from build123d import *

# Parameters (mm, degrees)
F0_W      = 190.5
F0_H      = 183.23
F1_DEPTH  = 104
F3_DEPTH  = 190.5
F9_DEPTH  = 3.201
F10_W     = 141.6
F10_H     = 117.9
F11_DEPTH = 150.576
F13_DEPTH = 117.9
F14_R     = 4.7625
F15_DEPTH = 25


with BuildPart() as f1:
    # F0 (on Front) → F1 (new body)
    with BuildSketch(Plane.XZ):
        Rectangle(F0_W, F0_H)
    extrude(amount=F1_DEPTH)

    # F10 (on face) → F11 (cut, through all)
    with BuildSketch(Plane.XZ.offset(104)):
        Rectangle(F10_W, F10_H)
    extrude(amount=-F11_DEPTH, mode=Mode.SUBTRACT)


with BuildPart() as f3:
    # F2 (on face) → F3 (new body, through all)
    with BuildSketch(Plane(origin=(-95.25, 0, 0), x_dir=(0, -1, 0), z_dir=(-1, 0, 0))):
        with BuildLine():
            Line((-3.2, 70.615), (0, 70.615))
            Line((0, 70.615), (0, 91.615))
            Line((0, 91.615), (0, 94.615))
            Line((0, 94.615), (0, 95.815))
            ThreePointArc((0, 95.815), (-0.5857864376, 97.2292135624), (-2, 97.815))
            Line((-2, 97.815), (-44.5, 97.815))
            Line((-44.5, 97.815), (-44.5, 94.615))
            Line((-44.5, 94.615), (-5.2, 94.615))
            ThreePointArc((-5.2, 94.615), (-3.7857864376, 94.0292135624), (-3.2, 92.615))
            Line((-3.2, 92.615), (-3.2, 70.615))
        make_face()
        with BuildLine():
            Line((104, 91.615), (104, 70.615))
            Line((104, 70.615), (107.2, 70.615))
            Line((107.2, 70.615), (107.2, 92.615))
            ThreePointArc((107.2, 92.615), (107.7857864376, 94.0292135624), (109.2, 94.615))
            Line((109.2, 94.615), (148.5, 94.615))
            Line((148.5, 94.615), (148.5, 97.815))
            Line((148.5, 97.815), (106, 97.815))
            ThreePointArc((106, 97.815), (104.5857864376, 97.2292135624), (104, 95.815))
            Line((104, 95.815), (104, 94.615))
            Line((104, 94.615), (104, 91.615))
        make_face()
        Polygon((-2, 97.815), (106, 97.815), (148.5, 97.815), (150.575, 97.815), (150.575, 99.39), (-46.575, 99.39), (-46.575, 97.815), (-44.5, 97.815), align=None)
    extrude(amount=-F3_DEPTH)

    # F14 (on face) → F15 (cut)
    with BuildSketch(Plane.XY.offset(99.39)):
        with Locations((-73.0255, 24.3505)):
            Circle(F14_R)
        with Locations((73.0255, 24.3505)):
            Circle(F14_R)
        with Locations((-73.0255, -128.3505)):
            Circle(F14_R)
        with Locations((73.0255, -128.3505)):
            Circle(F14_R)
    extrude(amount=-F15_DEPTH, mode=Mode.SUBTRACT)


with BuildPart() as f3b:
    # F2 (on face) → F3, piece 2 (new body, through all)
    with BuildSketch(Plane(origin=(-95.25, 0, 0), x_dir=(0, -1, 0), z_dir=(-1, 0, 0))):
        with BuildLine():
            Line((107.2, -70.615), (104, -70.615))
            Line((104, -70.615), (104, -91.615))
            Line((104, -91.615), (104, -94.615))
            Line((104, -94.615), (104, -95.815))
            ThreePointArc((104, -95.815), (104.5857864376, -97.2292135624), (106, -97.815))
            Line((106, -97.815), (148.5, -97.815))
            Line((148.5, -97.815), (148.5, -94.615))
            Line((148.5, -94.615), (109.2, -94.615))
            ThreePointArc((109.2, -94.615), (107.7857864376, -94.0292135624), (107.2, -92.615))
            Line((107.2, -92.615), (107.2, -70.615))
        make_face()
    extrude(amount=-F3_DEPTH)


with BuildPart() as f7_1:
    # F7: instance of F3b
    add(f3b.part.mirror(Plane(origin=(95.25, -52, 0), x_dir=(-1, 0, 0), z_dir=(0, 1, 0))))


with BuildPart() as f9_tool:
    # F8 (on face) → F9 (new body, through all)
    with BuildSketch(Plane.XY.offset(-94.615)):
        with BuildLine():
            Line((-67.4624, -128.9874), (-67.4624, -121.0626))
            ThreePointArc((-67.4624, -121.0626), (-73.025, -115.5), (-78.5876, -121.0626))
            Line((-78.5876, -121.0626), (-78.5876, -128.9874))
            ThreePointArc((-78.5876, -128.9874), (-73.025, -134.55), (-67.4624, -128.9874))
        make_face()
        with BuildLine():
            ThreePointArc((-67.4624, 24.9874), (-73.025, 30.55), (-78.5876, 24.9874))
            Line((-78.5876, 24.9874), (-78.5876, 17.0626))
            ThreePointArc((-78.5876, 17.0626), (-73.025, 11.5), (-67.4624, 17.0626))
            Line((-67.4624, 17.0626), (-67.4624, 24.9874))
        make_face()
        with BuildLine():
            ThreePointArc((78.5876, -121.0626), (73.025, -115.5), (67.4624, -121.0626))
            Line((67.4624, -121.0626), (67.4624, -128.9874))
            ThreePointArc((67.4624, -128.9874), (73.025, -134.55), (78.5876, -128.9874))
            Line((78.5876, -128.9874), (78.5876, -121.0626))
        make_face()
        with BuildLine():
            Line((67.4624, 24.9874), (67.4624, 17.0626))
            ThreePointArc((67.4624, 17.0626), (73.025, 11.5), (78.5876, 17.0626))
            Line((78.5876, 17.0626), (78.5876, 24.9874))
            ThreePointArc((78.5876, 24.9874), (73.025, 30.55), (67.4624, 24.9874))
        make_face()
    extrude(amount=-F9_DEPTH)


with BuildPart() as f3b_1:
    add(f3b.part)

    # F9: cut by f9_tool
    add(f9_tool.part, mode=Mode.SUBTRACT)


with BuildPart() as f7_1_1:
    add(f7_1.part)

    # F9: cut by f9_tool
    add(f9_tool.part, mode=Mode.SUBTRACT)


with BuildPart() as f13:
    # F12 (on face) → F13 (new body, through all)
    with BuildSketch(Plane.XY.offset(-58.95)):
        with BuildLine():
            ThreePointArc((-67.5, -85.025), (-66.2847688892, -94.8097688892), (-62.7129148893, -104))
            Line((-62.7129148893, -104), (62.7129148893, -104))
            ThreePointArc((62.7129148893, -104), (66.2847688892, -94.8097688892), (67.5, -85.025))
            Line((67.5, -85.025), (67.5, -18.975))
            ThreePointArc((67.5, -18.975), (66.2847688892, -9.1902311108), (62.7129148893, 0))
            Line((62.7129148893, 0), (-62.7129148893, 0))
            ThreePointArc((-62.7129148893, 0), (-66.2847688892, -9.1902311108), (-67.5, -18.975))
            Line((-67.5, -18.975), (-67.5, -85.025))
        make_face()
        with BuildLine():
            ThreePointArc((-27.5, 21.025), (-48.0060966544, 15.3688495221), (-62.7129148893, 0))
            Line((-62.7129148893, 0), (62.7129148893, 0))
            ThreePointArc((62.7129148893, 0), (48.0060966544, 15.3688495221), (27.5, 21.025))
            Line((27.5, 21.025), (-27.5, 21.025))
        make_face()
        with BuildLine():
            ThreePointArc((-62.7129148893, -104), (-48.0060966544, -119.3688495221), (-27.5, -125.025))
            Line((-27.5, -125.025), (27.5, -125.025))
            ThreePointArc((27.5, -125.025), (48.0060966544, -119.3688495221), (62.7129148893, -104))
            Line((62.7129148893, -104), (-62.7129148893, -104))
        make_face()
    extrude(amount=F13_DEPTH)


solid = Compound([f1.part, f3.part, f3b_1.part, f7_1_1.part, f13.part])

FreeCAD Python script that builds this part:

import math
import FreeCAD as App
import Part
import Sketcher
from FreeCAD import Vector

doc = App.newDocument("Part")
params = doc.addObject("Spreadsheet::Sheet", "Params")
for row, (alias, value) in enumerate([
    ("sketch1_width", "190.5 mm"),
    ("sketch1_height", "183.23 mm"),
    ("pad1_length", "104 mm"),
    ("sketch2_width", "141.6 mm"),
    ("sketch2_height", "117.9 mm"),
    ("sketch3_radius", "2 mm"),
    ("sketch3_width", "108 mm"),
    ("sketch3_height", "22 mm"),
    ("sketch3_width2", "3.2 mm"),
    ("sketch3_width3", "39.3 mm"),
    ("pad2_length", "190.5 mm"),
    ("pocket2_length", "25 mm"),
    ("sketch5_radius", "2 mm"),
    ("sketch5_height", "22 mm"),
    ("sketch5_width", "3.2 mm"),
    ("sketch5_width2", "42.5 mm"),
    ("pad3_length", "190.5 mm"),
    ("pad4_length", "3.201 mm"),
    ("sketch7_radius", "40 mm"),
    ("sketch7_width", "55 mm"),
    ("sketch7_height", "66.05 mm"),
    ("pad5_length", "117.9 mm"),
], start=1):
    params.set(f"A{row}", alias)
    params.set(f"B{row}", "=" + value)
    params.setAlias(f"B{row}", alias)

body = doc.addObject("PartDesign::Body", "Body")

sketch1 = body.newObject("Sketcher::SketchObject", "Sketch")
sketch1.AttachmentSupport = (doc.getObject("XZ_Plane"), [""])
sketch1.MapMode = "FlatFace"
sketch1.addGeometry([
    Part.LineSegment(Vector(-95, 92, 0), Vector(-95, -92, 0)),
    Part.LineSegment(Vector(-95, -92, 0), Vector(95, -92, 0)),
    Part.LineSegment(Vector(95, -92, 0), Vector(95, 92, 0)),
    Part.LineSegment(Vector(95, 92, 0), Vector(-95, 92, 0)),
], False)
sketch1.addConstraint([
    Sketcher.Constraint("Coincident", 0, 2, 1, 1),
    Sketcher.Constraint("Coincident", 1, 2, 2, 1),
    Sketcher.Constraint("Coincident", 2, 2, 3, 1),
    Sketcher.Constraint("Coincident", 3, 2, 0, 1),
    Sketcher.Constraint("Vertical", 0),
    Sketcher.Constraint("Horizontal", 1),
    Sketcher.Constraint("Vertical", 2),
    Sketcher.Constraint("Horizontal", 3),
    Sketcher.Constraint("Symmetric", 0, 2, 2, 2, -1, 1),
    Sketcher.Constraint("DistanceX", 1, 1, 1, 2, 190.5),
    Sketcher.Constraint("DistanceY", 0, 2, 0, 1, 183.23),
])
sketch1.setExpression("Constraints[9]", "Params.sketch1_width")
sketch1.setExpression("Constraints[10]", "Params.sketch1_height")
pad1 = body.newObject("PartDesign::Pad", "Pad")
pad1.Profile = sketch1
pad1.setExpression("Length", "Params.pad1_length")

sketch2 = body.newObject("Sketcher::SketchObject", "Sketch001")
sketch2.AttachmentSupport = (doc.getObject("XZ_Plane"), [""])
sketch2.MapMode = "FlatFace"
sketch2.AttachmentOffset = App.Placement(Vector(0, 0, 104), App.Rotation())
sketch2.addGeometry([
    Part.LineSegment(Vector(-71, 59, 0), Vector(-71, -59, 0)),
    Part.LineSegment(Vector(-71, -59, 0), Vector(71, -59, 0)),
    Part.LineSegment(Vector(71, -59, 0), Vector(71, 59, 0)),
    Part.LineSegment(Vector(71, 59, 0), Vector(-71, 59, 0)),
], False)
sketch2.addConstraint([
    Sketcher.Constraint("Coincident", 0, 2, 1, 1),
    Sketcher.Constraint("Coincident", 1, 2, 2, 1),
    Sketcher.Constraint("Coincident", 2, 2, 3, 1),
    Sketcher.Constraint("Coincident", 3, 2, 0, 1),
    Sketcher.Constraint("Vertical", 0),
    Sketcher.Constraint("Horizontal", 1),
    Sketcher.Constraint("Vertical", 2),
    Sketcher.Constraint("Horizontal", 3),
    Sketcher.Constraint("Symmetric", 0, 2, 2, 2, -1, 1),
    Sketcher.Constraint("DistanceX", 1, 1, 1, 2, 141.6),
    Sketcher.Constraint("DistanceY", 0, 2, 0, 1, 117.9),
])
sketch2.setExpression("Constraints[9]", "Params.sketch2_width")
sketch2.setExpression("Constraints[10]", "Params.sketch2_height")
pocket1 = body.newObject("PartDesign::Pocket", "Pocket")
pocket1.Profile = sketch2
pocket1.Type = "ThroughAll"
body2 = doc.addObject("PartDesign::Body", "Body001")

sketch3 = body2.newObject("Sketcher::SketchObject", "Sketch002")
sketch3.AttachmentSupport = (doc.getObject("YZ_Plane001"), [""])
sketch3.MapMode = "FlatFace"
sketch3.AttachmentOffset = App.Placement(Vector(0, 0, -95.25), App.Rotation())
sketch3.addGeometry([
    Part.LineSegment(Vector(3.2, 70.6, 0), Vector(0, 70.6, 0)),
    Part.LineSegment(Vector(0, 70.6, 0), Vector(0, 95.8, 0)),
    Part.ArcOfCircle(Part.Circle(Vector(2, 95.8, 0), Vector(0, 0, 1), 2), math.radians(90), math.radians(180)),
    Part.LineSegment(Vector(2, 97.8, 0), Vector(-106, 97.8, 0)),
    Part.ArcOfCircle(Part.Circle(Vector(-106, 95.8, 0), Vector(0, 0, 1), 2), math.radians(0), math.radians(90)),
    Part.LineSegment(Vector(-104, 95.8, 0), Vector(-104, 70.6, 0)),
    Part.LineSegment(Vector(-104, 70.6, 0), Vector(-107.2, 70.6, 0)),
    Part.LineSegment(Vector(-107.2, 70.6, 0), Vector(-107.2, 92.6, 0)),
    Part.ArcOfCircle(Part.Circle(Vector(-109.2, 92.6, 0), Vector(0, 0, 1), 2), math.radians(0), math.radians(90)),
    Part.LineSegment(Vector(-109.2, 94.6, 0), Vector(-148.5, 94.6, 0)),
    Part.LineSegment(Vector(-148.5, 94.6, 0), Vector(-148.5, 97.8, 0)),
    Part.LineSegment(Vector(-148.5, 97.8, 0), Vector(-150.6, 97.8, 0)),
    Part.LineSegment(Vector(-150.6, 97.8, 0), Vector(-150.6, 99.4, 0)),
    Part.LineSegment(Vector(-150.6, 99.4, 0), Vector(46.6, 99.4, 0)),
    Part.LineSegment(Vector(46.6, 99.4, 0), Vector(46.6, 97.8, 0)),
    Part.LineSegment(Vector(46.6, 97.8, 0), Vector(44.5, 97.8, 0)),
    Part.LineSegment(Vector(44.5, 97.8, 0), Vector(44.5, 94.6, 0)),
    Part.LineSegment(Vector(44.5, 94.6, 0), Vector(5.2, 94.6, 0)),
    Part.ArcOfCircle(Part.Circle(Vector(5.2, 92.6, 0), Vector(0, 0, 1), 2), math.radians(90), math.radians(180)),
    Part.LineSegment(Vector(3.2, 92.6, 0), Vector(3.2, 70.6, 0)),
], False)
sketch3.addConstraint([
    Sketcher.Constraint("Coincident", 0, 2, 1, 1),
    Sketcher.Constraint("Tangent", 1, 2, 2, 2),
    Sketcher.Constraint("Tangent", 2, 1, 3, 1),
    Sketcher.Constraint("Tangent", 3, 2, 4, 2),
    Sketcher.Constraint("Tangent", 4, 1, 5, 1),
    Sketcher.Constraint("Coincident", 5, 2, 6, 1),
    Sketcher.Constraint("Coincident", 6, 2, 7, 1),
    Sketcher.Constraint("Tangent", 7, 2, 8, 1),
    Sketcher.Constraint("Tangent", 8, 2, 9, 1),
    Sketcher.Constraint("Coincident", 9, 2, 10, 1),
    Sketcher.Constraint("Coincident", 10, 2, 11, 1),
    Sketcher.Constraint("Coincident", 11, 2, 12, 1),
    Sketcher.Constraint("Coincident", 12, 2, 13, 1),
    Sketcher.Constraint("Coincident", 13, 2, 14, 1),
    Sketcher.Constraint("Coincident", 14, 2, 15, 1),
    Sketcher.Constraint("Coincident", 15, 2, 16, 1),
    Sketcher.Constraint("Coincident", 16, 2, 17, 1),
    Sketcher.Constraint("Tangent", 17, 2, 18, 1),
    Sketcher.Constraint("Tangent", 18, 2, 19, 1),
    Sketcher.Constraint("Coincident", 19, 2, 0, 1),
    Sketcher.Constraint("Horizontal", 0),
    Sketcher.Constraint("Vertical", 1),
    Sketcher.Constraint("Horizontal", 3),
    Sketcher.Constraint("Vertical", 5),
    Sketcher.Constraint("Horizontal", 6),
    Sketcher.Constraint("Vertical", 7),
    Sketcher.Constraint("Horizontal", 9),
    Sketcher.Constraint("Vertical", 10),
    Sketcher.Constraint("Horizontal", 11),
    Sketcher.Constraint("Vertical", 12),
    Sketcher.Constraint("Horizontal", 13),
    Sketcher.Constraint("Vertical", 14),
    Sketcher.Constraint("Horizontal", 15),
    Sketcher.Constraint("Vertical", 16),
    Sketcher.Constraint("Horizontal", 17),
    Sketcher.Constraint("Vertical", 19),
    Sketcher.Constraint("Equal", 2, 4),
    Sketcher.Constraint("Equal", 4, 8),
    Sketcher.Constraint("Equal", 8, 18),
    Sketcher.Constraint("PointOnObject", 0, 2, -2),
    Sketcher.Constraint("Horizontal", 8, 3, 18, 3),
    Sketcher.Constraint("Horizontal", 0, 2, 5, 2),
    Sketcher.Constraint("Horizontal", 3, 2, 10, 2),
    Sketcher.Constraint("Horizontal", 11, 2, 14, 2),
    Sketcher.Constraint("Equal", 0, 6),
    Sketcher.Constraint("Equal", 11, 15),
    Sketcher.Constraint("Equal", 9, 17),
    Sketcher.Constraint("Equal", 6, 10),
    Sketcher.Constraint("Radius", 2, 2.0),
    Sketcher.Constraint("DistanceX", 3, 2, 3, 1, 108.0),
    Sketcher.Constraint("DistanceY", 7, 1, 7, 2, 22.0),
    Sketcher.Constraint("DistanceX", 0, 2, 0, 1, 3.2),
    Sketcher.Constraint("DistanceX", 9, 2, 9, 1, 39.3),
    Sketcher.Constraint("DistanceX", 13, 1, 13, 2, 197.15),
    Sketcher.Constraint("DistanceY", 12, 1, 12, 2, 1.575),
    Sketcher.Constraint("DistanceY", -1, 1, 12, 2, 99.39),
])
sketch3.setExpression("Constraints[48]", "Params.sketch3_radius")
sketch3.setExpression("Constraints[49]", "Params.sketch3_width")
sketch3.setExpression("Constraints[50]", "Params.sketch3_height")
sketch3.setExpression("Constraints[51]", "Params.sketch3_width2")
sketch3.setExpression("Constraints[52]", "Params.sketch3_width3")
pad2 = body2.newObject("PartDesign::Pad", "Pad001")
pad2.Profile = sketch3
pad2.setExpression("Length", "Params.pad2_length")

sketch4 = body2.newObject("Sketcher::SketchObject", "Sketch003")
sketch4.AttachmentSupport = (doc.getObject("XY_Plane001"), [""])
sketch4.MapMode = "FlatFace"
sketch4.AttachmentOffset = App.Placement(Vector(0, 0, 99.39), App.Rotation())
sketch4.addGeometry([
    Part.Circle(Vector(-73, 24.4, 0), Vector(0, 0, 1), 4.8),
    Part.Circle(Vector(73, 24.4, 0), Vector(0, 0, 1), 4.8),
    Part.Circle(Vector(-73, -128.4, 0), Vector(0, 0, 1), 4.8),
    Part.Circle(Vector(73, -128.4, 0), Vector(0, 0, 1), 4.8),
], False)
sketch4.addConstraint([
    Sketcher.Constraint("Equal", 0, 1),
    Sketcher.Constraint("Equal", 1, 2),
    Sketcher.Constraint("Equal", 2, 3),
    Sketcher.Constraint("Symmetric", 0, 3, 1, 3, -2),
    Sketcher.Constraint("Symmetric", 2, 3, 3, 3, -2),
    Sketcher.Constraint("Vertical", 0, 3, 2, 3),
    Sketcher.Constraint("Diameter", 0, 9.525),
    Sketcher.Constraint("DistanceX", 0, 3, 1, 3, 146.051),
    Sketcher.Constraint("DistanceY", 2, 3, 0, 3, 152.701),
    Sketcher.Constraint("DistanceY", -1, 1, 0, 3, 24.3505),
])
pocket2 = body2.newObject("PartDesign::Pocket", "Pocket001")
pocket2.Profile = sketch4
pocket2.setExpression("Length", "Params.pocket2_length")
body3 = doc.addObject("PartDesign::Body", "Body002")

sketch5 = body3.newObject("Sketcher::SketchObject", "Sketch004")
sketch5.AttachmentSupport = (doc.getObject("YZ_Plane002"), [""])
sketch5.MapMode = "FlatFace"
sketch5.AttachmentOffset = App.Placement(Vector(0, 0, -95.25), App.Rotation())
sketch5.addGeometry([
    Part.LineSegment(Vector(-107.2, -70.6, 0), Vector(-104, -70.6, 0)),
    Part.LineSegment(Vector(-104, -70.6, 0), Vector(-104, -95.8, 0)),
    Part.ArcOfCircle(Part.Circle(Vector(-106, -95.8, 0), Vector(0, 0, 1), 2), math.radians(-90), math.radians(0)),
    Part.LineSegment(Vector(-106, -97.8, 0), Vector(-148.5, -97.8, 0)),
    Part.LineSegment(Vector(-148.5, -97.8, 0), Vector(-148.5, -94.6, 0)),
    Part.LineSegment(Vector(-148.5, -94.6, 0), Vector(-109.2, -94.6, 0)),
    Part.ArcOfCircle(Part.Circle(Vector(-109.2, -92.6, 0), Vector(0, 0, 1), 2), math.radians(-90), math.radians(0)),
    Part.LineSegment(Vector(-107.2, -92.6, 0), Vector(-107.2, -70.6, 0)),
], False)
sketch5.addConstraint([
    Sketcher.Constraint("Coincident", 0, 2, 1, 1),
    Sketcher.Constraint("Tangent", 1, 2, 2, 2),
    Sketcher.Constraint("Tangent", 2, 1, 3, 1),
    Sketcher.Constraint("Coincident", 3, 2, 4, 1),
    Sketcher.Constraint("Coincident", 4, 2, 5, 1),
    Sketcher.Constraint("Tangent", 5, 2, 6, 1),
    Sketcher.Constraint("Tangent", 6, 2, 7, 1),
    Sketcher.Constraint("Coincident", 7, 2, 0, 1),
    Sketcher.Constraint("Horizontal", 0),
    Sketcher.Constraint("Vertical", 1),
    Sketcher.Constraint("Horizontal", 3),
    Sketcher.Constraint("Vertical", 4),
    Sketcher.Constraint("Horizontal", 5),
    Sketcher.Constraint("Vertical", 7),
    Sketcher.Constraint("Equal", 2, 6),
    Sketcher.Constraint("Equal", 0, 4),
    Sketcher.Constraint("Radius", 2, 2.0),
    Sketcher.Constraint("DistanceY", 7, 1, 7, 2, 22.0),
    Sketcher.Constraint("DistanceX", 0, 1, 0, 2, 3.2),
    Sketcher.Constraint("DistanceX", 3, 2, 3, 1, 42.5),
    Sketcher.Constraint("DistanceX", 2, 3, -1, 1, 106.0),
    Sketcher.Constraint("DistanceY", 2, 3, -1, 1, 95.815),
])
sketch5.setExpression("Constraints[16]", "Params.sketch5_radius")
sketch5.setExpression("Constraints[17]", "Params.sketch5_height")
sketch5.setExpression("Constraints[18]", "Params.sketch5_width")
sketch5.setExpression("Constraints[19]", "Params.sketch5_width2")
pad3 = body3.newObject("PartDesign::Pad", "Pad002")
pad3.Profile = sketch5
pad3.setExpression("Length", "Params.pad3_length")
body4 = doc.addObject("PartDesign::Body", "Body003")
doc.recompute()

mirroring = doc.addObject("Part::Mirroring", "Mirroring")
mirroring.Source = body3
mirroring.Base = Vector(95.25, -52, 0)
mirroring.Normal = Vector(0, 1, 0)
body4.BaseFeature = mirroring
doc.recompute()
body5 = doc.addObject("PartDesign::Body", "Body004")
body5.AllowCompound = True

sketch6 = body5.newObject("Sketcher::SketchObject", "Sketch005")
sketch6.AttachmentSupport = (doc.getObject("XY_Plane004"), [""])
sketch6.MapMode = "FlatFace"
sketch6.AttachmentOffset = App.Placement(Vector(0, 0, -94.615), App.Rotation())
sketch6.addGeometry([
    Part.LineSegment(Vector(-67, -129, 0), Vector(-67, -121, 0)),
    Part.ArcOfCircle(Part.Circle(Vector(-73, -121, 0), Vector(0, 0, 1), 6), math.radians(0), math.radians(180)),
    Part.LineSegment(Vector(-79, -121, 0), Vector(-79, -129, 0)),
    Part.ArcOfCircle(Part.Circle(Vector(-73, -129, 0), Vector(0, 0, 1), 6), math.radians(180), math.radians(360)),
    Part.ArcOfCircle(Part.Circle(Vector(-73, 25, 0), Vector(0, 0, 1), 6), math.radians(0), math.radians(180)),
    Part.LineSegment(Vector(-79, 25, 0), Vector(-79, 17, 0)),
    Part.ArcOfCircle(Part.Circle(Vector(-73, 17, 0), Vector(0, 0, 1), 6), math.radians(180), math.radians(360)),
    Part.LineSegment(Vector(-67, 17, 0), Vector(-67, 25, 0)),
    Part.ArcOfCircle(Part.Circle(Vector(73, -121, 0), Vector(0, 0, 1), 6), math.radians(0), math.radians(180)),
    Part.LineSegment(Vector(67, -121, 0), Vector(67, -129, 0)),
    Part.ArcOfCircle(Part.Circle(Vector(73, -129, 0), Vector(0, 0, 1), 6), math.radians(180), math.radians(360)),
    Part.LineSegment(Vector(79, -129, 0), Vector(79, -121, 0)),
    Part.LineSegment(Vector(67, 25, 0), Vector(67, 17, 0)),
    Part.ArcOfCircle(Part.Circle(Vector(73, 17, 0), Vector(0, 0, 1), 6), math.radians(180), math.radians(360)),
    Part.LineSegment(Vector(79, 17, 0), Vector(79, 25, 0)),
    Part.ArcOfCircle(Part.Circle(Vector(73, 25, 0), Vector(0, 0, 1), 6), math.radians(0), math.radians(180)),
], False)
sketch6.addConstraint([
    Sketcher.Constraint("Tangent", 0, 2, 1, 1),
    Sketcher.Constraint("Tangent", 1, 2, 2, 1),
    Sketcher.Constraint("Tangent", 2, 2, 3, 1),
    Sketcher.Constraint("Tangent", 3, 2, 0, 1),
    Sketcher.Constraint("Tangent", 4, 2, 5, 1),
    Sketcher.Constraint("Tangent", 5, 2, 6, 1),
    Sketcher.Constraint("Tangent", 6, 2, 7, 1),
    Sketcher.Constraint("Tangent", 7, 2, 4, 1),
    Sketcher.Constraint("Tangent", 8, 2, 9, 1),
    Sketcher.Constraint("Tangent", 9, 2, 10, 1),
    Sketcher.Constraint("Tangent", 10, 2, 11, 1),
    Sketcher.Constraint("Tangent", 11, 2, 8, 1),
    Sketcher.Constraint("Tangent", 12, 2, 13, 1),
    Sketcher.Constraint("Tangent", 13, 2, 14, 1),
    Sketcher.Constraint("Tangent", 14, 2, 15, 1),
    Sketcher.Constraint("Tangent", 15, 2, 12, 1),
    Sketcher.Constraint("Vertical", 0),
    Sketcher.Constraint("Vertical", 2),
    Sketcher.Constraint("Vertical", 5),
    Sketcher.Constraint("Vertical", 7),
    Sketcher.Constraint("Vertical", 9),
    Sketcher.Constraint("Vertical", 11),
    Sketcher.Constraint("Vertical", 12),
    Sketcher.Constraint("Vertical", 14),
    Sketcher.Constraint("Equal", 3, 4),
    Sketcher.Constraint("Equal", 6, 8),
    Sketcher.Constraint("Equal", 10, 13),
    Sketcher.Constraint("Symmetric", 1, 3, 8, 3, -2),
    Sketcher.Constraint("Symmetric", 6, 3, 13, 3, -2),
    Sketcher.Constraint("Horizontal", 3, 3, 10, 3),
    Sketcher.Constraint("Horizontal", 4, 3, 15, 3),
    Sketcher.Constraint("Vertical", 3, 3, 4, 3),
    Sketcher.Constraint("Equal", 2, 5),
    Sketcher.Constraint("Radius", 1, 5.5626),
    Sketcher.Constraint("DistanceY", 1, 3, 4, 3, 146.05),
    Sketcher.Constraint("DistanceX", 1, 3, 8, 3, 146.05),
    Sketcher.Constraint("DistanceY", 0, 1, 0, 2, 7.9248),
    Sketcher.Constraint("DistanceY", 1, 3, -1, 1, 121.0626),
])
pad4 = body5.newObject("PartDesign::Pad", "Pad003")
pad4.Profile = sketch6
pad4.setExpression("Length", "Params.pad4_length")
pad4.Reversed = True
doc.recompute()

body6 = doc.addObject("PartDesign::Body", "Body005")
body6.BaseFeature = body5
boolean = body3.newObject("PartDesign::Boolean", "Boolean")
boolean.Type = "Cut"
boolean.addObjects([body6])
doc.recompute()

boolean2 = body4.newObject("PartDesign::Boolean", "Boolean001")
boolean2.Type = "Cut"
boolean2.addObjects([body5])
body7 = doc.addObject("PartDesign::Body", "Body006")

sketch7 = body7.newObject("Sketcher::SketchObject", "Sketch006")
sketch7.AttachmentSupport = (doc.getObject("XY_Plane006"), [""])
sketch7.MapMode = "FlatFace"
sketch7.AttachmentOffset = App.Placement(Vector(0, 0, -58.95), App.Rotation())
sketch7.addGeometry([
    Part.ArcOfCircle(Part.Circle(Vector(-28, -85, 0), Vector(0, 0, 1), 40), math.radians(180), math.radians(208)),
    Part.ArcOfCircle(Part.Circle(Vector(-28, -85, 0), Vector(0, 0, 1), 40), math.radians(-152), math.radians(-90)),
    Part.LineSegment(Vector(-28, -125, 0), Vector(28, -125, 0)),
    Part.ArcOfCircle(Part.Circle(Vector(28, -85, 0), Vector(0, 0, 1), 40), math.radians(-90), math.radians(-28)),
    Part.ArcOfCircle(Part.Circle(Vector(28, -85, 0), Vector(0, 0, 1), 40), math.radians(-28), math.radians(0)),
    Part.LineSegment(Vector(68, -85, 0), Vector(68, -19, 0)),
    Part.ArcOfCircle(Part.Circle(Vector(28, -19, 0), Vector(0, 0, 1), 40), math.radians(0), math.radians(28)),
    Part.ArcOfCircle(Part.Circle(Vector(28, -19, 0), Vector(0, 0, 1), 40), math.radians(28), math.radians(90)),
    Part.LineSegment(Vector(28, 21, 0), Vector(-28, 21, 0)),
    Part.ArcOfCircle(Part.Circle(Vector(-28, -19, 0), Vector(0, 0, 1), 40), math.radians(90), math.radians(152)),
    Part.ArcOfCircle(Part.Circle(Vector(-28, -19, 0), Vector(0, 0, 1), 40), math.radians(152), math.radians(180)),
    Part.LineSegment(Vector(-68, -19, 0), Vector(-68, -85, 0)),
], False)
sketch7.addConstraint([
    Sketcher.Constraint("Tangent", 0, 2, 1, 1),
    Sketcher.Constraint("Tangent", 1, 2, 2, 1),
    Sketcher.Constraint("Tangent", 2, 2, 3, 1),
    Sketcher.Constraint("Tangent", 3, 2, 4, 1),
    Sketcher.Constraint("Tangent", 4, 2, 5, 1),
    Sketcher.Constraint("Tangent", 5, 2, 6, 1),
    Sketcher.Constraint("Tangent", 6, 2, 7, 1),
    Sketcher.Constraint("Tangent", 7, 2, 8, 1),
    Sketcher.Constraint("Tangent", 8, 2, 9, 1),
    Sketcher.Constraint("Tangent", 9, 2, 10, 1),
    Sketcher.Constraint("Tangent", 10, 2, 11, 1),
    Sketcher.Constraint("Tangent", 11, 2, 0, 1),
    Sketcher.Constraint("Horizontal", 2),
    Sketcher.Constraint("Vertical", 5),
    Sketcher.Constraint("Horizontal", 8),
    Sketcher.Constraint("Vertical", 11),
    Sketcher.Constraint("Equal", 0, 1),
    Sketcher.Constraint("Equal", 1, 3),
    Sketcher.Constraint("Equal", 3, 4),
    Sketcher.Constraint("Equal", 4, 6),
    Sketcher.Constraint("Equal", 6, 7),
    Sketcher.Constraint("Equal", 7, 9),
    Sketcher.Constraint("Equal", 9, 10),
    Sketcher.Constraint("Symmetric", 6, 2, 9, 2, -1, 1),
    Sketcher.Constraint("Symmetric", 0, 2, 3, 2, -2),
    Sketcher.Constraint("Vertical", 3, 2, 6, 2),
    Sketcher.Constraint("Radius", 0, 40.0),
    Sketcher.Constraint("DistanceX", 2, 1, 2, 2, 55.0),
    Sketcher.Constraint("DistanceY", 0, 2, -1, 1, 104.0),
    Sketcher.Constraint("DistanceY", 5, 1, 5, 2, 66.05),
])
sketch7.setExpression("Constraints[26]", "Params.sketch7_radius")
sketch7.setExpression("Constraints[27]", "Params.sketch7_width")
sketch7.setExpression("Constraints[29]", "Params.sketch7_height")
pad5 = body7.newObject("PartDesign::Pad", "Pad004")
pad5.Profile = sketch7
pad5.setExpression("Length", "Params.pad5_length")
mirroring.Visibility = False

doc.recompute()
